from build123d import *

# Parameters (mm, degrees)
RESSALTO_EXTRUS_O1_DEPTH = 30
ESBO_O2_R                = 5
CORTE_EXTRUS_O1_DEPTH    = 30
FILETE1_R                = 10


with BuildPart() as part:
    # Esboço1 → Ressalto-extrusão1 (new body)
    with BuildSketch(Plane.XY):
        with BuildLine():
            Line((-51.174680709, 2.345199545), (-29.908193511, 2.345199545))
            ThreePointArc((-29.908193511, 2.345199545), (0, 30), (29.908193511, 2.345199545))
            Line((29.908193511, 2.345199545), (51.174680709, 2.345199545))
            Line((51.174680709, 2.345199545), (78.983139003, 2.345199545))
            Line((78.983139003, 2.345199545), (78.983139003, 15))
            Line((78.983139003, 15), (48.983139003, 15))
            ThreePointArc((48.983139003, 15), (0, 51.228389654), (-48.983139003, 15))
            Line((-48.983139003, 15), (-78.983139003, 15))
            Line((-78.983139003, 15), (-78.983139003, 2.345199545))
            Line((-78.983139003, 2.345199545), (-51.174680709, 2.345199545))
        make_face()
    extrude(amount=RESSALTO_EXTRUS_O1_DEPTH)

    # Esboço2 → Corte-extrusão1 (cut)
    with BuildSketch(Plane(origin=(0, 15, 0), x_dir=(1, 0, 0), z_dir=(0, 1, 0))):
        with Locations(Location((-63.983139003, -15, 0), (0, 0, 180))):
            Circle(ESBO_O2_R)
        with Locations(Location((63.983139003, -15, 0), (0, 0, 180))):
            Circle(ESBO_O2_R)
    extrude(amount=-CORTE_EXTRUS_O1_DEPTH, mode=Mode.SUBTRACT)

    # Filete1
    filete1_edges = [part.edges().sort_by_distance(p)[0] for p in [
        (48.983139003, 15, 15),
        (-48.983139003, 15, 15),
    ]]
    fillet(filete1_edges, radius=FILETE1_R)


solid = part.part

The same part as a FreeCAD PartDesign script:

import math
import FreeCAD as App
import Part
import Sketcher


def edges_at(feature, points):
    """Names of the edges that pass closest to the given points."""
    edges = feature.Shape.Edges
    near = lambda p: min(range(len(edges)), key=lambda i: edges[i].distToShape(Part.Vertex(*p))[0])
    return sorted({f"Edge{near(p) + 1}" for p in points})

doc = App.newDocument("Part")
body = doc.addObject("PartDesign::Body", "Body")

# Sketch on XY plane
sketch1 = body.newObject("Sketcher::SketchObject", "Sketch")
sketch1.AttachmentSupport = (doc.getObject("XY_Plane"), [""])
sketch1.MapMode = "FlatFace"
sketch1.addGeometry([
    Part.ArcOfCircle(Part.Circle(App.Vector(0, 0, 0), App.Vector(0, 0, 1), 30), math.radians(4), math.radians(176)),  # 0
    Part.LineSegment(App.Vector(30, 2, 0), App.Vector(79, 2, 0)),  # 1
    Part.LineSegment(App.Vector(79, 2, 0), App.Vector(79, 15, 0)),  # 2
    Part.LineSegment(App.Vector(79, 15, 0), App.Vector(49, 15, 0)),  # 3
    Part.ArcOfCircle(Part.Circle(App.Vector(0, 0, 0), App.Vector(0, 0, 1), 51), math.radians(17), math.radians(163)),  # 4
    Part.LineSegment(App.Vector(-49, 15, 0), App.Vector(-79, 15, 0)),  # 5
    Part.LineSegment(App.Vector(-79, 15, 0), App.Vector(-79, 2, 0)),  # 6
    Part.LineSegment(App.Vector(-79, 2, 0), App.Vector(-30, 2, 0)),  # 7
], False)
sketch1.addConstraint([
    Sketcher.Constraint("Coincident", 0, 1, 1, 1),
    Sketcher.Constraint("Coincident", 1, 2, 2, 1),
    Sketcher.Constraint("Coincident", 2, 2, 3, 1),
    Sketcher.Constraint("Coincident", 3, 2, 4, 1),
    Sketcher.Constraint("Coincident", 4, 2, 5, 1),
    Sketcher.Constraint("Coincident", 5, 2, 6, 1),
    Sketcher.Constraint("Coincident", 6, 2, 7, 1),
    Sketcher.Constraint("Coincident", 7, 2, 0, 2),
    Sketcher.Constraint("Horizontal", 1),
    Sketcher.Constraint("Vertical", 2),
    Sketcher.Constraint("Horizontal", 3),
    Sketcher.Constraint("Horizontal", 5),
    Sketcher.Constraint("Vertical", 6),
    Sketcher.Constraint("Horizontal", 7),
    Sketcher.Constraint("Coincident", 0, 3, -1, 1),
    Sketcher.Constraint("Coincident", 4, 3, -1, 1),
    Sketcher.Constraint("Symmetric", 2, 2, 5, 2, -2),
    Sketcher.Constraint("Horizontal", 1, 2, 6, 2),
    Sketcher.Constraint("Radius", 0, 30.0),
    Sketcher.Constraint("DistanceX", 3, 2, 3, 1, 30.0),
    Sketcher.Constraint("DistanceY", -1, 1, 2, 2, 15.0),
    Sketcher.Constraint("Radius", 4, 51.22839),
    Sketcher.Constraint("DistanceY", 2, 1, 2, 2, 12.6548),
])
pad1 = body.newObject("PartDesign::Pad", "Pad")
pad1.Profile = sketch1
pad1.Length = 30

# Sketch on XZ plane
sketch2 = body.newObject("Sketcher::SketchObject", "Sketch001")
sketch2.AttachmentSupport = (doc.getObject("XZ_Plane"), [""])
sketch2.MapMode = "FlatFace"
sketch2.AttachmentOffset = App.Placement(App.Vector(0, 0, -15), App.Rotation())
sketch2.addGeometry([
    Part.Circle(App.Vector(-64, 15, 0), App.Vector(0, 0, 1), 5),
    Part.Circle(App.Vector(64, 15, 0), App.Vector(0, 0, 1), 5),
], False)
sketch2.addConstraint([
    Sketcher.Constraint("Equal", 0, 1),
    Sketcher.Constraint("Symmetric", 0, 3, 1, 3, -2),
    Sketcher.Constraint("Diameter", 0, 10.0),
    Sketcher.Constraint("DistanceY", -1, 1, 0, 3, 15.0),
    Sketcher.Constraint("DistanceX", 0, 3, -1, 1, 63.983139),
])
pocket1 = body.newObject("PartDesign::Pocket", "Pocket")
pocket1.Profile = sketch2
pocket1.Length = 30
pocket1.Reversed = True
doc.recompute()

fillet = body.newObject("PartDesign::Fillet", "Fillet")
fillet.Base = (pocket1, edges_at(pocket1, [(48.983, 15, 15), (-48.983, 15, 15)]))
fillet.Radius = 10

doc.recompute()
